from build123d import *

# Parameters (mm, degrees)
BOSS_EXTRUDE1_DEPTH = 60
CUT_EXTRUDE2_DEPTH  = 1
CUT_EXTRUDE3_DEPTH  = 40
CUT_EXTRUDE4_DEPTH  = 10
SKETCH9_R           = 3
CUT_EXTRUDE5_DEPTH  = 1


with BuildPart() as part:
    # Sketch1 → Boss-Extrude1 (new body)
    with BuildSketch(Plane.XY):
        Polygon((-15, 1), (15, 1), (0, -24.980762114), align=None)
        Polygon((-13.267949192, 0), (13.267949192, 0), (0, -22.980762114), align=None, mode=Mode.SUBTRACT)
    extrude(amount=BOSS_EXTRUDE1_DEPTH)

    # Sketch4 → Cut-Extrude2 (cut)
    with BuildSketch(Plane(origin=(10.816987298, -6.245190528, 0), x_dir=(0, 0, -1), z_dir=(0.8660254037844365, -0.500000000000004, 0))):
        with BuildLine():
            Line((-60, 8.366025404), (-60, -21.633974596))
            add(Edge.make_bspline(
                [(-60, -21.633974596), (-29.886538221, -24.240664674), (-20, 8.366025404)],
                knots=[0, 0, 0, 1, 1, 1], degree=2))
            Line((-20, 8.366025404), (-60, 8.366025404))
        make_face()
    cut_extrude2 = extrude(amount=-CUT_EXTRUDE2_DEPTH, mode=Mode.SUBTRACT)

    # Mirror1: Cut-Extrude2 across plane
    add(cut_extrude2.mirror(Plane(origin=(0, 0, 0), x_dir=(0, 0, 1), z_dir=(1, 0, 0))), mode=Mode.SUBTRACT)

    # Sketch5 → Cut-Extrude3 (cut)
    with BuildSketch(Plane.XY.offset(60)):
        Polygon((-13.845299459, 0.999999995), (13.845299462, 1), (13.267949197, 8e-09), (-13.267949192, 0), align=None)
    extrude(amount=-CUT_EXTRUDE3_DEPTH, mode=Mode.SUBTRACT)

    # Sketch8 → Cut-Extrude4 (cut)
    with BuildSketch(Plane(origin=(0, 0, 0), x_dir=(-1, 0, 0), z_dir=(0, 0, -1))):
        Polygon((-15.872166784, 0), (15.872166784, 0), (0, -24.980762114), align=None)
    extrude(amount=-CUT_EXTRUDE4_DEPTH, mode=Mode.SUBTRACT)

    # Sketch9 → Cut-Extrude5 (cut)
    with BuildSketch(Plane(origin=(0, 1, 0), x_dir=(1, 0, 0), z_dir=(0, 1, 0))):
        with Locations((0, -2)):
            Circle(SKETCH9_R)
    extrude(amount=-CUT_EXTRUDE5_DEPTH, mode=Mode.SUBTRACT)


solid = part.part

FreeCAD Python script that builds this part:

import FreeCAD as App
import Part
import Sketcher
Q = App.Units.Quantity

doc = App.newDocument("Part")
params = doc.addObject("Spreadsheet::Sheet", "Params")
for row, (alias, value) in enumerate([
    ("sketch1_width", "30 mm"),
    ("pad1_length", "60 mm"),
    ("pocket1_length", "1 mm"),
    ("pocket2_length", "40 mm"),
    ("pocket3_length", "10 mm"),
    ("sketch5_diameter", "6 mm"),
    ("pocket4_length", "1 mm"),
], start=1):
    params.set(f"A{row}", alias)
    params.set(f"B{row}", "=" + value)
    params.setAlias(f"B{row}", alias)

body = doc.addObject("PartDesign::Body", "Body")

# Sketch on XY plane
sketch1 = doc.addObject("Sketcher::SketchObject", "Sketch")
body.addObject(sketch1)
sketch1.AttachmentSupport = (doc.XY_Plane, [""])
sketch1.MapMode = "FlatFace"
sketch1.addGeometry([
    Part.LineSegment(App.Vector(15, 1, 0), App.Vector(-15, 1, 0)),  # 0
    Part.LineSegment(App.Vector(-15, 1, 0), App.Vector(0, -25, 0)),  # 1
    Part.LineSegment(App.Vector(0, -25, 0), App.Vector(15, 1, 0)),  # 2
    Part.LineSegment(App.Vector(-13, 0, 0), App.Vector(13, 0, 0)),  # 3
    Part.LineSegment(App.Vector(13, 0, 0), App.Vector(0, -23, 0)),  # 4
    Part.LineSegment(App.Vector(0, -23, 0), App.Vector(-13, 0, 0)),  # 5
], False)
sketch1.addConstraint([
    Sketcher.Constraint("Coincident", 0, 2, 1, 1),
    Sketcher.Constraint("Coincident", 1, 2, 2, 1),
    Sketcher.Constraint("Coincident", 2, 2, 0, 1),
    Sketcher.Constraint("Coincident", 3, 2, 4, 1),
    Sketcher.Constraint("Coincident", 4, 2, 5, 1),
    Sketcher.Constraint("Coincident", 5, 2, 3, 1),
    Sketcher.Constraint("Horizontal", 0),
    Sketcher.Constraint("Horizontal", 3),
    Sketcher.Constraint("Symmetric", 3, 2, 5, 2, -1, 1),
    Sketcher.Constraint("PointOnObject", 1, 2, -2),
    Sketcher.Constraint("PointOnObject", 4, 2, -2),
    Sketcher.Constraint("Parallel", 2, 4),
    Sketcher.Constraint("Parallel", 1, 5),
    Sketcher.Constraint("DistanceX", 0, 2, 0, 1, 30.0),
    Sketcher.Constraint("Angle", 1, Q("-60 deg")),
    Sketcher.Constraint("DistanceY", -1, 1, 0, 2, 1.0),
    Sketcher.Constraint("DistanceY", 1, 2, 4, 2, 2.0),
])
sketch1.setExpression("Constraints[13]", "Params.sketch1_width")
pad1 = doc.addObject("PartDesign::Pad", "Pad")
body.addObject(pad1)
pad1.Profile = sketch1
pad1.setExpression("Length", "Params.pad1_length")

# Sketch on an angled plane
sketch2 = doc.addObject("Sketcher::SketchObject", "Sketch001")
body.addObject(sketch2)
sketch2.Placement = App.Placement(App.Vector(10.816987, -6.245191, 0), App.Rotation(App.Vector(0, 0, -1), App.Vector(0.5, 0.866025404, 0), App.Vector(0.866025404, -0.5, 0), "ZXY"))
sketch2.addGeometry([
    Part.LineSegment(App.Vector(-60, 8.366025, 0), App.Vector(-60, -21.633975, 0)),
    Part.BSplineCurve([App.Vector(-60, -21.633975, 0), App.Vector(-29.886538, -24.240665, 0), App.Vector(-20, 8.366025, 0)], [3, 3], [0, 1], False, 2, [1, 1, 1], False),
    Part.LineSegment(App.Vector(-20, 8.366025, 0), App.Vector(-60, 8.366025, 0)),
], False)
sketch2.addConstraint([
    Sketcher.Constraint("Block", 1),
    Sketcher.Constraint("Coincident", 0, 2, 1, 1),
    Sketcher.Constraint("Coincident", 1, 2, 2, 1),
    Sketcher.Constraint("Coincident", 2, 2, 0, 1),
    Sketcher.Constraint("Vertical", 0),
    Sketcher.Constraint("Horizontal", 2),
])
pocket1 = doc.addObject("PartDesign::Pocket", "Pocket")
body.addObject(pocket1)
pocket1.Profile = sketch2
pocket1.setExpression("Length", "Params.pocket1_length")
doc.recompute()

mirrored = doc.addObject("PartDesign::Mirrored", "Mirrored")
body.addObject(mirrored)
mirrored.Originals = [pocket1]
mirrored.MirrorPlane = (doc.YZ_Plane, [""])
body.Tip = mirrored

# Sketch on XY plane
sketch3 = doc.addObject("Sketcher::SketchObject", "Sketch002")
body.addObject(sketch3)
sketch3.AttachmentSupport = (doc.XY_Plane, [""])
sketch3.MapMode = "FlatFace"
sketch3.AttachmentOffset = App.Placement(App.Vector(0, 0, 60), App.Rotation())
sketch3.addGeometry([
    Part.LineSegment(App.Vector(13.8, 1, 0), App.Vector(-13.8, 1, 0)),
    Part.LineSegment(App.Vector(-13.8, 1, 0), App.Vector(-13.3, 0, 0)),
    Part.LineSegment(App.Vector(-13.3, 0, 0), App.Vector(13.3, 0, 0)),
    Part.LineSegment(App.Vector(13.3, 0, 0), App.Vector(13.8, 1, 0)),
], False)
sketch3.addConstraint([
    Sketcher.Constraint("Coincident", 0, 2, 1, 1),
    Sketcher.Constraint("Coincident", 1, 2, 2, 1),
    Sketcher.Constraint("Coincident", 2, 2, 3, 1),
    Sketcher.Constraint("Coincident", 3, 2, 0, 1),
    Sketcher.Constraint("Horizontal", 0),
    Sketcher.Constraint("Horizontal", 2),
    Sketcher.Constraint("Symmetric", 1, 2, 2, 2, -1, 1),
    Sketcher.Constraint("Equal", 1, 3),
    Sketcher.Constraint("Angle", 1, Q("-60 deg")),
    Sketcher.Constraint("DistanceY", -1, 1, 0, 2, 1.0),
    Sketcher.Constraint("DistanceX", 0, 2, 0, 1, 27.690599),
])
pocket2 = doc.addObject("PartDesign::Pocket", "Pocket001")
body.addObject(pocket2)
pocket2.Profile = sketch3
pocket2.setExpression("Length", "Params.pocket2_length")

# Sketch on XY plane
sketch4 = doc.addObject("Sketcher::SketchObject", "Sketch003")
body.addObject(sketch4)
sketch4.AttachmentSupport = (doc.XY_Plane, [""])
sketch4.MapMode = "FlatFace"
sketch4.addGeometry([
    Part.LineSegment(App.Vector(-16, 0, 0), App.Vector(16, 0, 0)),
    Part.LineSegment(App.Vector(16, 0, 0), App.Vector(0, -25, 0)),
    Part.LineSegment(App.Vector(0, -25, 0), App.Vector(-16, 0, 0)),
], False)
sketch4.addConstraint([
    Sketcher.Constraint("Coincident", 0, 2, 1, 1),
    Sketcher.Constraint("Coincident", 1, 2, 2, 1),
    Sketcher.Constraint("Coincident", 2, 2, 0, 1),
    Sketcher.Constraint("Horizontal", 0),
    Sketcher.Constraint("Symmetric", 0, 2, 2, 2, -1, 1),
    Sketcher.Constraint("PointOnObject", 1, 2, -2),
    Sketcher.Constraint("Distance", 1, 29.596692),
    Sketcher.Constraint("DistanceX", 0, 1, 0, 2, 31.744334),
])
pocket3 = doc.addObject("PartDesign::Pocket", "Pocket002")
body.addObject(pocket3)
pocket3.Profile = sketch4
pocket3.setExpression("Length", "Params.pocket3_length")
pocket3.Reversed = True

# Sketch on XZ plane
sketch5 = doc.addObject("Sketcher::SketchObject", "Sketch004")
body.addObject(sketch5)
sketch5.AttachmentSupport = (doc.XZ_Plane, [""])
sketch5.MapMode = "FlatFace"
sketch5.AttachmentOffset = App.Placement(App.Vector(0, 0, -1), App.Rotation())
sketch5.addGeometry(Part.Circle(App.Vector(0, 2, 0), App.Vector(0, 0, 1), 3), False)
sketch5.addConstraint([
    Sketcher.Constraint("PointOnObject", 0, 3, -2),
    Sketcher.Constraint("Diameter", 0, 6.0),
    Sketcher.Constraint("DistanceY", -1, 1, 0, 3, 2.0),
])
sketch5.setExpression("Constraints[1]", "Params.sketch5_diameter")
pocket4 = doc.addObject("PartDesign::Pocket", "Pocket003")
body.addObject(pocket4)
pocket4.Profile = sketch5
pocket4.setExpression("Length", "Params.pocket4_length")
pocket4.Reversed = True

doc.recompute()
